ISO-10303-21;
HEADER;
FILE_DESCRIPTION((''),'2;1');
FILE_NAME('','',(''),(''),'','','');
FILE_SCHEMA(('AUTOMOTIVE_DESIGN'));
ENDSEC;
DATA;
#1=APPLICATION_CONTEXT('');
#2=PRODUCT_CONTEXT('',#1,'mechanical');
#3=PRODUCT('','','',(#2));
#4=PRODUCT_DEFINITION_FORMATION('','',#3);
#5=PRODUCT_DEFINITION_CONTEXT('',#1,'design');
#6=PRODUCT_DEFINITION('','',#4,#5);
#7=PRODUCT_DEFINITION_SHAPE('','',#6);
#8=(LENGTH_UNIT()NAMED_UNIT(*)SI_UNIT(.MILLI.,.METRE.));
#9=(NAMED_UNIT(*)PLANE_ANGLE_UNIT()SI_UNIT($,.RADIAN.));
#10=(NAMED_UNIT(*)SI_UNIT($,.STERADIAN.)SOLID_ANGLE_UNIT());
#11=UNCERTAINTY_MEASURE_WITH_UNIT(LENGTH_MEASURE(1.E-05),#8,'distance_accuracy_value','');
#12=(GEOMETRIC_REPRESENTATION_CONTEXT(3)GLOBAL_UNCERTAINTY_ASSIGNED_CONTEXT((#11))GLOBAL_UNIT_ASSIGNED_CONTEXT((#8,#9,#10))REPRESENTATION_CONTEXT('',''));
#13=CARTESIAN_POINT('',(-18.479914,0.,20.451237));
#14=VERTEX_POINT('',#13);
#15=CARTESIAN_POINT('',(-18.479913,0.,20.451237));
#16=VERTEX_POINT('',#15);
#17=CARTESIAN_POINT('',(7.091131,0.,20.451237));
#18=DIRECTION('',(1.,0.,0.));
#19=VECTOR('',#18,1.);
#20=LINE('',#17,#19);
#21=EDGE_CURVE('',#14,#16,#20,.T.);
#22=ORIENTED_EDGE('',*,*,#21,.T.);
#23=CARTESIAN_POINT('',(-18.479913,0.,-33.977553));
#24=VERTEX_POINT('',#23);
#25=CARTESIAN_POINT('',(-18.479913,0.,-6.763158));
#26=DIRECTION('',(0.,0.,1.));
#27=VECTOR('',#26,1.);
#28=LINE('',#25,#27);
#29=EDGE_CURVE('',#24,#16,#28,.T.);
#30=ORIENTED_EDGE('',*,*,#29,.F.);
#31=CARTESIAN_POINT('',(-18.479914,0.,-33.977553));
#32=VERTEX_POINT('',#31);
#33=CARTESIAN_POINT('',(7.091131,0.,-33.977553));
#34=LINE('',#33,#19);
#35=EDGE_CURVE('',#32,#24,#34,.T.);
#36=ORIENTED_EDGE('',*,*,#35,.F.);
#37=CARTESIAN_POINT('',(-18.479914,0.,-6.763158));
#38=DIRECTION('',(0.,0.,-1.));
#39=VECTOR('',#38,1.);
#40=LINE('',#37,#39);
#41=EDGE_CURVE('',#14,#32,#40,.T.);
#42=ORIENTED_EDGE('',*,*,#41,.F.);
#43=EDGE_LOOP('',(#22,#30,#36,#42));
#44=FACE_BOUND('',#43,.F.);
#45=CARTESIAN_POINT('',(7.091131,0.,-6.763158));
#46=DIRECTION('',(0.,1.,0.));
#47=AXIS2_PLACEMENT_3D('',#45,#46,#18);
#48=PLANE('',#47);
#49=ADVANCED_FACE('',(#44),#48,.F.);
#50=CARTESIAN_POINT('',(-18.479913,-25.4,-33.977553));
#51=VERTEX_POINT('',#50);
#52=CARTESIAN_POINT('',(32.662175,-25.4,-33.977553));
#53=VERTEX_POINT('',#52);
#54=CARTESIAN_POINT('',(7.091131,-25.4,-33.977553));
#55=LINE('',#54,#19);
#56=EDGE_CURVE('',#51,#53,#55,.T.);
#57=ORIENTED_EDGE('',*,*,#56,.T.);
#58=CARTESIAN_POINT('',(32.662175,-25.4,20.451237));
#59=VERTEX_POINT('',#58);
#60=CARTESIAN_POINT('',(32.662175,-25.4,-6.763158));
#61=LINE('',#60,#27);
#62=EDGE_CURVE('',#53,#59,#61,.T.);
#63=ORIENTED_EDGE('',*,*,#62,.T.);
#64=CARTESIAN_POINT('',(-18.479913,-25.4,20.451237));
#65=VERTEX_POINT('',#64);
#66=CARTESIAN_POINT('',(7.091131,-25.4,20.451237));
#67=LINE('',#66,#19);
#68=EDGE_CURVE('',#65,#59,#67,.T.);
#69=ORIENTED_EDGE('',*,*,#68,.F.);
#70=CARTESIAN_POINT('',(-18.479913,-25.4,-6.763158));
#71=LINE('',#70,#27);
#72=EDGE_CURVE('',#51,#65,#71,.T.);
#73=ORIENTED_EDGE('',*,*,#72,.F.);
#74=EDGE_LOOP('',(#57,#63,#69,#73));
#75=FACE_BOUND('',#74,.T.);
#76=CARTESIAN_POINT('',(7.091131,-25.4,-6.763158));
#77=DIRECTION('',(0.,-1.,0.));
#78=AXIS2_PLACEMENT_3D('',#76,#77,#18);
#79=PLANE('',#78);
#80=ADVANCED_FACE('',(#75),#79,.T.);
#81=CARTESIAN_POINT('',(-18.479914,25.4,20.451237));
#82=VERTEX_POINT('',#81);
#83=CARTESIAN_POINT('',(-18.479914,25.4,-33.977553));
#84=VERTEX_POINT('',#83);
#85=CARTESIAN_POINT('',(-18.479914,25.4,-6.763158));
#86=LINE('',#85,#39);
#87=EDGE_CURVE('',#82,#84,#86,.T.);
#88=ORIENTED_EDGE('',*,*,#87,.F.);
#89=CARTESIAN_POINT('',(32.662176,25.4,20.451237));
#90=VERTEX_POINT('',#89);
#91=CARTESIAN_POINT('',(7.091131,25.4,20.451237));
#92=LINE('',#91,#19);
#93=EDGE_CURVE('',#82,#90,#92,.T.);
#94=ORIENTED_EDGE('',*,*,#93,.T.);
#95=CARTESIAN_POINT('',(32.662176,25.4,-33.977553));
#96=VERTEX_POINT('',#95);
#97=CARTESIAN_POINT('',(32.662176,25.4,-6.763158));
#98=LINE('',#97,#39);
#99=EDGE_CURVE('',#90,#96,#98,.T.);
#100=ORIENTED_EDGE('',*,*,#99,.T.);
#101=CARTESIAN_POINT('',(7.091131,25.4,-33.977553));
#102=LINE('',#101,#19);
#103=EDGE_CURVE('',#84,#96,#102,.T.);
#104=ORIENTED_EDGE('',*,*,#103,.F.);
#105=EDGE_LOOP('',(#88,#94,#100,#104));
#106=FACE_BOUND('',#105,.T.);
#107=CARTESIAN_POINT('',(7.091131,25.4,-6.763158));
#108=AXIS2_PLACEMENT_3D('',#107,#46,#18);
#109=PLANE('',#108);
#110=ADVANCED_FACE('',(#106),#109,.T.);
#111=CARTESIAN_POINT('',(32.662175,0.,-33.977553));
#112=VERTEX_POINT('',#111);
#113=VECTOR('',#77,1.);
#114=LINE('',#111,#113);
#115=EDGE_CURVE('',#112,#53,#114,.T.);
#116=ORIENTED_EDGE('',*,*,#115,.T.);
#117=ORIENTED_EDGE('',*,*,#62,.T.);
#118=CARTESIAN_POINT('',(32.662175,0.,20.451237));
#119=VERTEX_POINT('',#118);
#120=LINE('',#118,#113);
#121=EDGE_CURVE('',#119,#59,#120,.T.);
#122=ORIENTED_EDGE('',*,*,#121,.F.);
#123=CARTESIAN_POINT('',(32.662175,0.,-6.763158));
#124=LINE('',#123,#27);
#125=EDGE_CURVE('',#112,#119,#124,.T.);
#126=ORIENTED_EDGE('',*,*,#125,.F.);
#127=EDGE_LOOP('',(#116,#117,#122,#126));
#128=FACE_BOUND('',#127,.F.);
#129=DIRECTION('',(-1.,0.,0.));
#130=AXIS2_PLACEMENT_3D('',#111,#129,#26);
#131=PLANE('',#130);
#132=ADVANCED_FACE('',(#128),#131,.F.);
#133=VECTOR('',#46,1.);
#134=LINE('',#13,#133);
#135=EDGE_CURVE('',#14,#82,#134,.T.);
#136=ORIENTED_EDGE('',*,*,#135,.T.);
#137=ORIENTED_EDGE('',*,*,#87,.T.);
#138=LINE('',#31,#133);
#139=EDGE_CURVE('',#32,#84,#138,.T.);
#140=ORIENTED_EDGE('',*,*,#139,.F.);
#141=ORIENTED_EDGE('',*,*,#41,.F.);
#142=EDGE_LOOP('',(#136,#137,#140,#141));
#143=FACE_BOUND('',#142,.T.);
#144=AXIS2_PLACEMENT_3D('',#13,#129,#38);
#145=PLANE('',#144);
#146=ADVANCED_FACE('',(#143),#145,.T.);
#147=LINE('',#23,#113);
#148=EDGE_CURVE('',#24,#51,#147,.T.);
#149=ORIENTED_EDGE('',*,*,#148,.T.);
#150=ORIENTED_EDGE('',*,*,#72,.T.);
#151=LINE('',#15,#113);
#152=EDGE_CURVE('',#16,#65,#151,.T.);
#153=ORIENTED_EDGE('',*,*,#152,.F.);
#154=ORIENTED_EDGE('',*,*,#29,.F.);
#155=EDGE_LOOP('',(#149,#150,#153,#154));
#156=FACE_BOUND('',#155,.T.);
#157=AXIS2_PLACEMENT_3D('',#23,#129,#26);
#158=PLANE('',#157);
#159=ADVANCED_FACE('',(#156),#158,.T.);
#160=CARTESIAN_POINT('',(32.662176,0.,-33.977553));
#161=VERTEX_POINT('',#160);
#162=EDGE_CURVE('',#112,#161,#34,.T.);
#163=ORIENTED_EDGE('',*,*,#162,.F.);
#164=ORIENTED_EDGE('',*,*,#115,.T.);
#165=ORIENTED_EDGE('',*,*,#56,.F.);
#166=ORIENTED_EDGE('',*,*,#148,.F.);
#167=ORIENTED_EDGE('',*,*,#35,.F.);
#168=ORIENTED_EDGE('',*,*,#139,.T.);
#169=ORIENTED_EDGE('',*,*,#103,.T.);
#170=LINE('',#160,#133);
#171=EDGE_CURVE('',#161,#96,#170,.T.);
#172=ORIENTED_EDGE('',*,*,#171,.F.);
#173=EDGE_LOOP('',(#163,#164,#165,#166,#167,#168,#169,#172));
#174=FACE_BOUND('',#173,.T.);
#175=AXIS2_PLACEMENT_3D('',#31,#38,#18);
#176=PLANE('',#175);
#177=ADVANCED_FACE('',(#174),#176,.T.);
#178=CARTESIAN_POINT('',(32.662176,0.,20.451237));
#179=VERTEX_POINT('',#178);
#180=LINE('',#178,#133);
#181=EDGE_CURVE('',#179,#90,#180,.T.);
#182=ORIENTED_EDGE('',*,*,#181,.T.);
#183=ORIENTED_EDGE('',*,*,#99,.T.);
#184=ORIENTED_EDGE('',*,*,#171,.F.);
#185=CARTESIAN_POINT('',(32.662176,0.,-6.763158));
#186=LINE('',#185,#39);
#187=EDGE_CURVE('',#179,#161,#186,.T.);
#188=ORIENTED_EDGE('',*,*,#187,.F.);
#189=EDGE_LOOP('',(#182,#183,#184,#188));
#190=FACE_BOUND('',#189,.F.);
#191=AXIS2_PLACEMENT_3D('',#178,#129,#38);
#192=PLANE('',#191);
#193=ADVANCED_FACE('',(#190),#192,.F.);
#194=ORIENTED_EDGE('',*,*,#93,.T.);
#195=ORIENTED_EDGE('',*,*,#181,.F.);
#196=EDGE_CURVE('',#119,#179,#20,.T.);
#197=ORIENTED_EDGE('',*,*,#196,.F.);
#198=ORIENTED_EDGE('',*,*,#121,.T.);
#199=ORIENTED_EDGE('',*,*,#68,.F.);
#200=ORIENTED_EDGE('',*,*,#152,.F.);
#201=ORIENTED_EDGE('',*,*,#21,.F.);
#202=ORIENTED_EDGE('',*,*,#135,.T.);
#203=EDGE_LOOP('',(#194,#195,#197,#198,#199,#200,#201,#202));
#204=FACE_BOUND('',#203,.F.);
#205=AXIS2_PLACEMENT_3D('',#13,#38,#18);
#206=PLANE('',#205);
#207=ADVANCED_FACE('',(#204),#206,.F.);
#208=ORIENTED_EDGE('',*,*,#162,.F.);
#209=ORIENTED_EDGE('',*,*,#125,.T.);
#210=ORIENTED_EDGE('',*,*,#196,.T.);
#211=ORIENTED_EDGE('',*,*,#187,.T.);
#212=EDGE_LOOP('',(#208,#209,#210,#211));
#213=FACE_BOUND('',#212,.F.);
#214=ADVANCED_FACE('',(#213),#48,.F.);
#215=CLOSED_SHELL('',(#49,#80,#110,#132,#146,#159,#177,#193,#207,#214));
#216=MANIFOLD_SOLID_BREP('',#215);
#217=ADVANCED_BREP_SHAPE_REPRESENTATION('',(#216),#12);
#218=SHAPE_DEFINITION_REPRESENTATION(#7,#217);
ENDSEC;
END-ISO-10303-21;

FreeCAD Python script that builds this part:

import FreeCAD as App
import Part
import Sketcher
Q = App.Units.Quantity


def add_polygon(sketch, points):
    """Adds a closed chain of lines whose ends are joined by coincident constraints."""
    first, n = sketch.GeometryCount, len(points)
    for a, b in zip(points, points[1:] + points[:1]):
        sketch.addGeometry(Part.LineSegment(App.Vector(*a, 0), App.Vector(*b, 0)), False)
    for i in range(n):
        sketch.addConstraint(Sketcher.Constraint("Coincident", first + i, 2, first + (i + 1) % n, 1))

doc = App.newDocument("Part")
body = doc.addObject("PartDesign::Body", "Body")

# Sketch on XZ plane
sketch1 = doc.addObject("Sketcher::SketchObject", "Sketch")
body.addObject(sketch1)
sketch1.AttachmentSupport = (doc.XZ_Plane, [""])
sketch1.MapMode = "FlatFace"
add_polygon(sketch1, [(-18, 20), (-18, -34), (33, -34), (33, 20)])  # lines 0-3
sketch1.addConstraint([
    Sketcher.Constraint("Vertical", 0),
    Sketcher.Constraint("Horizontal", 1),
    Sketcher.Constraint("Vertical", 2),
    Sketcher.Constraint("Horizontal", 3),
    Sketcher.Constraint("DistanceX", 1, 1, 1, 2, Q("51.142089 mm")),
    Sketcher.Constraint("DistanceY", 0, 2, 0, 1, Q("54.42879 mm")),
    Sketcher.Constraint("DistanceX", 0, 2, -1, 1, Q("18.479913 mm")),
    Sketcher.Constraint("DistanceY", 0, 2, -1, 1, Q("33.977553 mm")),
])
pad1 = doc.addObject("PartDesign::Pad", "Pad")
body.addObject(pad1)
pad1.Profile = sketch1
pad1.Length = Q("1 in")

# Sketch on XZ plane
sketch2 = doc.addObject("Sketcher::SketchObject", "Sketch001")
body.addObject(sketch2)
sketch2.AttachmentSupport = (doc.XZ_Plane, [""])
sketch2.MapMode = "FlatFace"
add_polygon(sketch2, [(-18, -34), (-18, 20), (33, 20), (33, -34)])  # lines 0-3
sketch2.addConstraint([
    Sketcher.Constraint("Vertical", 0),
    Sketcher.Constraint("Horizontal", 1),
    Sketcher.Constraint("Vertical", 2),
    Sketcher.Constraint("Horizontal", 3),
    Sketcher.Constraint("DistanceX", 1, 1, 1, 2, Q("51.14209 mm")),
    Sketcher.Constraint("DistanceY", 0, 1, 0, 2, Q("54.42879 mm")),
    Sketcher.Constraint("DistanceX", 0, 2, -1, 1, Q("18.479914 mm")),
    Sketcher.Constraint("DistanceY", -1, 1, 0, 2, Q("20.451237 mm")),
])
pad2 = doc.addObject("PartDesign::Pad", "Pad001")
body.addObject(pad2)
pad2.Profile = sketch2
pad2.Length = Q("1 in")
pad2.Reversed = True

doc.recompute()
